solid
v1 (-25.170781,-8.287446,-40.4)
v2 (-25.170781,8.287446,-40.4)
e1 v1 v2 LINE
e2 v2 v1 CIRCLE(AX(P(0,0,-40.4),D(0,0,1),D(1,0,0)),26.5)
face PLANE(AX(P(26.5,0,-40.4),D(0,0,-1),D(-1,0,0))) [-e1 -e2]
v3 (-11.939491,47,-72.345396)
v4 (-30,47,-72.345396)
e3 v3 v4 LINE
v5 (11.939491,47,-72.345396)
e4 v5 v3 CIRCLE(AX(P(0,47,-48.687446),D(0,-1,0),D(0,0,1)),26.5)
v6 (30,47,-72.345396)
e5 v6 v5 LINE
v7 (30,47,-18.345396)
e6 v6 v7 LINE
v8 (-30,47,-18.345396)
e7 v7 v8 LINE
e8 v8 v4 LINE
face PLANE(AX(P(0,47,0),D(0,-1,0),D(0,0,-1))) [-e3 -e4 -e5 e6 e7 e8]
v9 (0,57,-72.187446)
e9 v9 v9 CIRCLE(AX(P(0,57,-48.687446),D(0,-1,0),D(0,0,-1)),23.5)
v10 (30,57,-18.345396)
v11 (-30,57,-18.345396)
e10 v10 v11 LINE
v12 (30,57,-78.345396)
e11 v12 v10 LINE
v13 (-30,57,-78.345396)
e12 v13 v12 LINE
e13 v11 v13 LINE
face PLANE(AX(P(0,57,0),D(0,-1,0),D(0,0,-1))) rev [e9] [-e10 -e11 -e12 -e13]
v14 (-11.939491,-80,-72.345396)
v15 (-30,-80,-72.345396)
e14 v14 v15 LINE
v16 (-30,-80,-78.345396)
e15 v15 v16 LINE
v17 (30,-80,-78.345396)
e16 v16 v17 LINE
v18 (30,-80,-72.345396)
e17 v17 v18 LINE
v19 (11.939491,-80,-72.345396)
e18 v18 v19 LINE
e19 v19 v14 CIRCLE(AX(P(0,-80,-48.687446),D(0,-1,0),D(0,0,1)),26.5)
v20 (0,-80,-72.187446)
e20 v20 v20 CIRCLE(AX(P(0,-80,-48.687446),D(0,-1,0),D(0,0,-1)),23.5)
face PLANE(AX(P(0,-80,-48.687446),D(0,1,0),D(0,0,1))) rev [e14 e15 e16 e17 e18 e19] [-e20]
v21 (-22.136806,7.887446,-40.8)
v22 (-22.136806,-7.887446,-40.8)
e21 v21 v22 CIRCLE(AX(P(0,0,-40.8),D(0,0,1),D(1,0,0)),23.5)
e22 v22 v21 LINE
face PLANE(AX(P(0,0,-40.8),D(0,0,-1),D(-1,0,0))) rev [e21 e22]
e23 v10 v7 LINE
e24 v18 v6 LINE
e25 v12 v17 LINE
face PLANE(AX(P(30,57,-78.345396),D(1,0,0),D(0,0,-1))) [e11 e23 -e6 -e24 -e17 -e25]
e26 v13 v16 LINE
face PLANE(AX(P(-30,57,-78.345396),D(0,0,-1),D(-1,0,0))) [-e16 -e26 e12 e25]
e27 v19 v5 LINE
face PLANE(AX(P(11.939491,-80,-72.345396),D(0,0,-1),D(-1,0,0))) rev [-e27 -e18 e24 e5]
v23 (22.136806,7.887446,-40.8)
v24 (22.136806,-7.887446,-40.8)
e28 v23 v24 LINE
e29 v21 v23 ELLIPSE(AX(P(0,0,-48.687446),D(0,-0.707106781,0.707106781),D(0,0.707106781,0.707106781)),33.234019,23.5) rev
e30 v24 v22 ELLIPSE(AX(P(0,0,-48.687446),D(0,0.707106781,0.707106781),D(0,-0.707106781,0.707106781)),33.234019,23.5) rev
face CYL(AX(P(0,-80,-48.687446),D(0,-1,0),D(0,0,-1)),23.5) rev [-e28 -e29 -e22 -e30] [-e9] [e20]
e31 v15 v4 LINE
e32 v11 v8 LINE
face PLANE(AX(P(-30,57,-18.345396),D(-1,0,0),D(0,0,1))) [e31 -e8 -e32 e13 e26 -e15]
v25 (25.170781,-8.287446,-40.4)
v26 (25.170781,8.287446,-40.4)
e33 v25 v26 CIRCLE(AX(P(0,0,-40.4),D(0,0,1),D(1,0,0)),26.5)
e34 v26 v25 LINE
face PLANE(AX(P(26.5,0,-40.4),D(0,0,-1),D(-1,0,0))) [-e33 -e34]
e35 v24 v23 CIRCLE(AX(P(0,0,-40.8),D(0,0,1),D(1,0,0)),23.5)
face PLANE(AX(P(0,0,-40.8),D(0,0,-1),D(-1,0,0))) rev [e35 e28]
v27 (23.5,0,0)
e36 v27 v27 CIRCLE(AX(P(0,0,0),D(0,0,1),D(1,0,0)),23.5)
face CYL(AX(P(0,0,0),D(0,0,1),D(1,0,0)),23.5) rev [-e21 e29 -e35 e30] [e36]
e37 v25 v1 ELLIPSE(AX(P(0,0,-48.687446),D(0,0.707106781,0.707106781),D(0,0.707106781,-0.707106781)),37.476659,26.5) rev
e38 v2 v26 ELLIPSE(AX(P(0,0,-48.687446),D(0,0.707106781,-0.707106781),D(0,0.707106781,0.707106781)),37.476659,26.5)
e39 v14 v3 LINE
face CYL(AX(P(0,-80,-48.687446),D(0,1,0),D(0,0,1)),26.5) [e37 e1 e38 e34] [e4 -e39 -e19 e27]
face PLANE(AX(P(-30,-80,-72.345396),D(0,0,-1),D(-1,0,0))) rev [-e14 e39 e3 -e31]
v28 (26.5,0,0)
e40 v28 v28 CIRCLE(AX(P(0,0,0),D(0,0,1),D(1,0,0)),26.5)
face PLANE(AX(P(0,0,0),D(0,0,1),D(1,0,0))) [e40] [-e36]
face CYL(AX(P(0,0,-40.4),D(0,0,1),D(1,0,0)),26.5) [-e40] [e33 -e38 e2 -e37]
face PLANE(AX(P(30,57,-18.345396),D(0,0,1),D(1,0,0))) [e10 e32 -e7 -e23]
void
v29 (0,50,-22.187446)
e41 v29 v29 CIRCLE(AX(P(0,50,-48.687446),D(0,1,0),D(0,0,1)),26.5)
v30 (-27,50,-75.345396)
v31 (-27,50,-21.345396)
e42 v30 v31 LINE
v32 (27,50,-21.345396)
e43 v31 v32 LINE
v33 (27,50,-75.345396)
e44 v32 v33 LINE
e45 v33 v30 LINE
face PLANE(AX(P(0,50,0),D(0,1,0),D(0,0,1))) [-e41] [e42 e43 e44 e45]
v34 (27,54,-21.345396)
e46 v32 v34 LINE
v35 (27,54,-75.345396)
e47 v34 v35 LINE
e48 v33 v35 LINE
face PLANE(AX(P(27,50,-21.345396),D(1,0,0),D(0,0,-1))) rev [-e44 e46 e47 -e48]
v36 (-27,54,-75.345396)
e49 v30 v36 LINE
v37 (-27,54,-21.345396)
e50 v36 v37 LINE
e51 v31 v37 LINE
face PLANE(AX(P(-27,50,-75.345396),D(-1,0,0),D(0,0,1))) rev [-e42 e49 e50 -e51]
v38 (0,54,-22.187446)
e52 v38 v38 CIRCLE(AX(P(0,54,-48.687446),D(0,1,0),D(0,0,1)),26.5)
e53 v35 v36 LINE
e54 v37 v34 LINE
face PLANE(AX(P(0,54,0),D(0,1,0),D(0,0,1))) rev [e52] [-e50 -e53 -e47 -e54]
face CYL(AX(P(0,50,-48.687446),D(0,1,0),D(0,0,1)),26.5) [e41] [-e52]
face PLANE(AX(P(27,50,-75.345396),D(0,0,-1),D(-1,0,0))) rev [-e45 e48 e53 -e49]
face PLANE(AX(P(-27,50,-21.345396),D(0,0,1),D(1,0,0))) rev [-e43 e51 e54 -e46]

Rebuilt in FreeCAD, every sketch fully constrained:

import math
import FreeCAD as App
import Part
import Sketcher
from FreeCAD import Vector
Q = App.Units.Quantity

doc = App.newDocument("Part")
params = doc.addObject("Spreadsheet::Sheet", "Params")
for row, (alias, value) in enumerate([
    ("sketch1_width", "60 mm"),
    ("pad1_length", "10 mm"),
    ("sketch2_radius", "26.5 mm"),
    ("sketch2_width", "60 mm"),
    ("sketch2_height", "6 mm"),
    ("pad2_length", "127 mm"),
    ("sketch3_width", "54 mm"),
    ("pocket1_length", "4 mm"),
    ("sketch4_height", "4 mm"),
    ("sketch4_width", "26.5 mm"),
    ("revolution_angle", "360 deg"),
    ("sketch5_width", "26.5 mm"),
    ("sketch5_height", "40.4 mm"),
    ("revolution2_angle", "360 deg"),
    ("sketch6_diameter", "47 mm"),
    ("hole_diameter", "47 mm"),
    ("hole_depth", "40.8 mm"),
    ("sketch7_diameter", "47 mm"),
    ("hole2_diameter", "47 mm"),
], start=1):
    params.set(f"A{row}", alias)
    params.set(f"B{row}", "=" + value)
    params.setAlias(f"B{row}", alias)

body = doc.addObject("PartDesign::Body", "Body")

sketch1 = doc.addObject("Sketcher::SketchObject", "Sketch")
body.addObject(sketch1)
sketch1.AttachmentSupport = (doc.XZ_Plane, [""])
sketch1.MapMode = "FlatFace"
sketch1.AttachmentOffset = App.Placement(Vector(0, 0, -47), App.Rotation())
sketch1.addGeometry([
    Part.LineSegment(Vector(-30, -18, 0), Vector(-30, -78, 0)),
    Part.LineSegment(Vector(-30, -78, 0), Vector(30, -78, 0)),
    Part.LineSegment(Vector(30, -78, 0), Vector(30, -18, 0)),
    Part.LineSegment(Vector(30, -18, 0), Vector(-30, -18, 0)),
], False)
sketch1.addConstraint([
    Sketcher.Constraint("Coincident", 0, 2, 1, 1),
    Sketcher.Constraint("Coincident", 1, 2, 2, 1),
    Sketcher.Constraint("Coincident", 2, 2, 3, 1),
    Sketcher.Constraint("Coincident", 3, 2, 0, 1),
    Sketcher.Constraint("Vertical", 0),
    Sketcher.Constraint("Horizontal", 1),
    Sketcher.Constraint("Vertical", 2),
    Sketcher.Constraint("Horizontal", 3),
    Sketcher.Constraint("Equal", 3, 0),
    Sketcher.Constraint("DistanceX", 1, 1, 1, 2, Q("60 mm")),
    Sketcher.Constraint("DistanceX", 0, 2, -1, 1, Q("30 mm")),
    Sketcher.Constraint("DistanceY", 0, 2, -1, 1, Q("78.345396 mm")),
])
sketch1.setExpression("Constraints[9]", "Params.sketch1_width")
pad1 = doc.addObject("PartDesign::Pad", "Pad")
body.addObject(pad1)
pad1.Profile = sketch1
pad1.setExpression("Length", "Params.pad1_length")
pad1.Reversed = True

sketch2 = doc.addObject("Sketcher::SketchObject", "Sketch001")
body.addObject(sketch2)
sketch2.AttachmentSupport = (doc.XZ_Plane, [""])
sketch2.MapMode = "FlatFace"
sketch2.AttachmentOffset = App.Placement(Vector(0, 0, -47), App.Rotation())
sketch2.addGeometry([
    Part.LineSegment(Vector(30, -72, 0), Vector(12, -72, 0)),
    Part.ArcOfCircle(Part.Circle(Vector(0, -49, 0), Vector(0, 0, 1), 26), math.radians(-63), math.radians(243)),
    Part.LineSegment(Vector(-12, -72, 0), Vector(-30, -72, 0)),
    Part.LineSegment(Vector(-30, -72, 0), Vector(-30, -78, 0)),
    Part.LineSegment(Vector(-30, -78, 0), Vector(30, -78, 0)),
    Part.LineSegment(Vector(30, -78, 0), Vector(30, -72, 0)),
], False)
sketch2.addConstraint([
    Sketcher.Constraint("Coincident", 0, 2, 1, 1),
    Sketcher.Constraint("Coincident", 1, 2, 2, 1),
    Sketcher.Constraint("Coincident", 2, 2, 3, 1),
    Sketcher.Constraint("Coincident", 3, 2, 4, 1),
    Sketcher.Constraint("Coincident", 4, 2, 5, 1),
    Sketcher.Constraint("Coincident", 5, 2, 0, 1),
    Sketcher.Constraint("Horizontal", 0),
    Sketcher.Constraint("Horizontal", 2),
    Sketcher.Constraint("Vertical", 3),
    Sketcher.Constraint("Horizontal", 4),
    Sketcher.Constraint("Vertical", 5),
    Sketcher.Constraint("Symmetric", 0, 2, 1, 2, -2),
    Sketcher.Constraint("Equal", 0, 2),
    Sketcher.Constraint("Radius", 1, Q("26.5 mm")),
    Sketcher.Constraint("DistanceX", 4, 1, 4, 2, Q("60 mm")),
    Sketcher.Constraint("DistanceY", 3, 2, 3, 1, Q("6 mm")),
    Sketcher.Constraint("DistanceX", 0, 2, 0, 1, Q("18.060509 mm")),
    Sketcher.Constraint("DistanceY", 1, 3, -1, 1, Q("48.687446 mm")),
])
sketch2.setExpression("Constraints[13]", "Params.sketch2_radius")
sketch2.setExpression("Constraints[14]", "Params.sketch2_width")
sketch2.setExpression("Constraints[15]", "Params.sketch2_height")
pad2 = doc.addObject("PartDesign::Pad", "Pad001")
body.addObject(pad2)
pad2.Profile = sketch2
pad2.setExpression("Length", "Params.pad2_length")

sketch3 = doc.addObject("Sketcher::SketchObject", "Sketch002")
body.addObject(sketch3)
sketch3.AttachmentSupport = (doc.XZ_Plane, [""])
sketch3.MapMode = "FlatFace"
sketch3.AttachmentOffset = App.Placement(Vector(0, 0, -54), App.Rotation())
sketch3.addGeometry([
    Part.LineSegment(Vector(-27, -75, 0), Vector(-27, -21, 0)),
    Part.LineSegment(Vector(-27, -21, 0), Vector(27, -21, 0)),
    Part.LineSegment(Vector(27, -21, 0), Vector(27, -75, 0)),
    Part.LineSegment(Vector(27, -75, 0), Vector(-27, -75, 0)),
], False)
sketch3.addConstraint([
    Sketcher.Constraint("Coincident", 0, 2, 1, 1),
    Sketcher.Constraint("Coincident", 1, 2, 2, 1),
    Sketcher.Constraint("Coincident", 2, 2, 3, 1),
    Sketcher.Constraint("Coincident", 3, 2, 0, 1),
    Sketcher.Constraint("Vertical", 0),
    Sketcher.Constraint("Horizontal", 1),
    Sketcher.Constraint("Vertical", 2),
    Sketcher.Constraint("Horizontal", 3),
    Sketcher.Constraint("Equal", 3, 0),
    Sketcher.Constraint("DistanceX", 1, 1, 1, 2, Q("54 mm")),
    Sketcher.Constraint("DistanceX", 0, 2, -1, 1, Q("27 mm")),
    Sketcher.Constraint("DistanceY", 0, 2, -1, 1, Q("21.345396 mm")),
])
sketch3.setExpression("Constraints[9]", "Params.sketch3_width")
pocket1 = doc.addObject("PartDesign::Pocket", "Pocket")
body.addObject(pocket1)
pocket1.Profile = sketch3
pocket1.setExpression("Length", "Params.pocket1_length")
pocket1.Reversed = True

sketch4 = doc.addObject("Sketcher::SketchObject", "Sketch003")
body.addObject(sketch4)
sketch4.AttachmentSupport = (doc.XY_Plane, [""])
sketch4.MapMode = "FlatFace"
sketch4.AttachmentOffset = App.Placement(Vector(0, 0, -48.687446), App.Rotation())
sketch4.addGeometry([
    Part.LineSegment(Vector(26.5, 54, 0), Vector(26.5, 50, 0)),
    Part.LineSegment(Vector(26.5, 50, 0), Vector(0, 50, 0)),
    Part.LineSegment(Vector(0, 50, 0), Vector(0, 54, 0)),
    Part.LineSegment(Vector(0, 54, 0), Vector(26.5, 54, 0)),
], False)
sketch4.addConstraint([
    Sketcher.Constraint("Coincident", 0, 2, 1, 1),
    Sketcher.Constraint("Coincident", 1, 2, 2, 1),
    Sketcher.Constraint("Coincident", 2, 2, 3, 1),
    Sketcher.Constraint("Coincident", 3, 2, 0, 1),
    Sketcher.Constraint("Vertical", 0),
    Sketcher.Constraint("Horizontal", 1),
    Sketcher.Constraint("Vertical", 2),
    Sketcher.Constraint("Horizontal", 3),
    Sketcher.Constraint("PointOnObject", 1, 2, -2),
    Sketcher.Constraint("DistanceY", 0, 2, 0, 1, Q("4 mm")),
    Sketcher.Constraint("DistanceX", 1, 2, 1, 1, Q("26.5 mm")),
    Sketcher.Constraint("DistanceY", -1, 1, 0, 2, Q("50 mm")),
])
sketch4.setExpression("Constraints[9]", "Params.sketch4_height")
sketch4.setExpression("Constraints[10]", "Params.sketch4_width")
revolution = doc.addObject("PartDesign::Revolution", "Revolution")
body.addObject(revolution)
revolution.Profile = sketch4
revolution.ReferenceAxis = (sketch4, ["V_Axis"])
revolution.setExpression("Angle", "Params.revolution_angle")

sketch5 = doc.addObject("Sketcher::SketchObject", "Sketch004")
body.addObject(sketch5)
sketch5.AttachmentSupport = (doc.XZ_Plane, [""])
sketch5.MapMode = "FlatFace"
sketch5.addGeometry([
    Part.LineSegment(Vector(0, -40, 0), Vector(0, 0, 0)),
    Part.LineSegment(Vector(0, 0, 0), Vector(26, 0, 0)),
    Part.LineSegment(Vector(26, 0, 0), Vector(26, -40, 0)),
    Part.LineSegment(Vector(26, -40, 0), Vector(0, -40, 0)),
], False)
sketch5.addConstraint([
    Sketcher.Constraint("Coincident", 0, 2, 1, 1),
    Sketcher.Constraint("Coincident", 1, 2, 2, 1),
    Sketcher.Constraint("Coincident", 2, 2, 3, 1),
    Sketcher.Constraint("Coincident", 3, 2, 0, 1),
    Sketcher.Constraint("Vertical", 0),
    Sketcher.Constraint("Horizontal", 1),
    Sketcher.Constraint("Vertical", 2),
    Sketcher.Constraint("Horizontal", 3),
    Sketcher.Constraint("Coincident", 0, 2, -1, 1),
    Sketcher.Constraint("DistanceX", 1, 1, 1, 2, Q("26.5 mm")),
    Sketcher.Constraint("DistanceY", 0, 1, 0, 2, Q("40.4 mm")),
])
sketch5.setExpression("Constraints[9]", "Params.sketch5_width")
sketch5.setExpression("Constraints[10]", "Params.sketch5_height")
revolution2 = doc.addObject("PartDesign::Revolution", "Revolution001")
body.addObject(revolution2)
revolution2.Profile = sketch5
revolution2.ReferenceAxis = (sketch5, ["V_Axis"])
revolution2.setExpression("Angle", "Params.revolution2_angle")

sketch6 = doc.addObject("Sketcher::SketchObject", "Sketch005")
body.addObject(sketch6)
sketch6.AttachmentSupport = (doc.XY_Plane, [""])
sketch6.MapMode = "FlatFace"
sketch6.addGeometry(Part.Circle(Vector(0, 0, 0), Vector(0, 0, 1), 24), False)
sketch6.addConstraint([
    Sketcher.Constraint("Coincident", 0, 3, -1, 1),
    Sketcher.Constraint("Diameter", 0, Q("47 mm")),
])
sketch6.setExpression("Constraints[1]", "Params.sketch6_diameter")
doc.recompute()
hole = doc.addObject("PartDesign::Hole", "Hole")
body.addObject(hole)
hole.Profile = sketch6
hole.ThreadType = "None"
hole.setExpression("Diameter", "Params.hole_diameter")
hole.DepthType = "Dimension"
hole.setExpression("Depth", "Params.hole_depth")
hole.DrillPoint = "Flat"

sketch7 = doc.addObject("Sketcher::SketchObject", "Sketch006")
body.addObject(sketch7)
sketch7.AttachmentSupport = (doc.XZ_Plane, [""])
sketch7.MapMode = "FlatFace"
sketch7.AttachmentOffset = App.Placement(Vector(0, 0, 80), App.Rotation())
sketch7.addGeometry(Part.Circle(Vector(0, -49, 0), Vector(0, 0, 1), 24), False)
sketch7.addConstraint([
    Sketcher.Constraint("PointOnObject", 0, 3, -2),
    Sketcher.Constraint("Diameter", 0, Q("47 mm")),
    Sketcher.Constraint("DistanceY", 0, 3, -1, 1, Q("48.687446 mm")),
])
sketch7.setExpression("Constraints[1]", "Params.sketch7_diameter")
doc.recompute()
hole2 = doc.addObject("PartDesign::Hole", "Hole001")
body.addObject(hole2)
hole2.Profile = sketch7
hole2.ThreadType = "None"
hole2.setExpression("Diameter", "Params.hole2_diameter")
hole2.DepthType = "ThroughAll"

doc.recompute()
